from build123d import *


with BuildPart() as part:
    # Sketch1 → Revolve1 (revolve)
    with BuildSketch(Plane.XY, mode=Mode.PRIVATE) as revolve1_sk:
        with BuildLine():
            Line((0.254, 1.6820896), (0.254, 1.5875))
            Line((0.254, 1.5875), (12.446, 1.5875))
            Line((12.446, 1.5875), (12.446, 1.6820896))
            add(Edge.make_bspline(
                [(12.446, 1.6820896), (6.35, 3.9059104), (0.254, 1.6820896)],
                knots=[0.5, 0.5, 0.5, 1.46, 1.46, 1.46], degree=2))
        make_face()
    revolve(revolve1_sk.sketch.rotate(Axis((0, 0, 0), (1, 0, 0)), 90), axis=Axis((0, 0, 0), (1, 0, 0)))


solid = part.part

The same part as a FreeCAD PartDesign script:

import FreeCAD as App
import Part
import Sketcher

V = App.Vector
Q = App.Units.Quantity

doc = App.newDocument("Part")
params = doc.addObject("Spreadsheet::Sheet", "Params")
for row, (alias, value) in enumerate([
    ("revolution_angle", "360 deg"),
], start=1):
    params.set(f"A{row}", alias)
    params.set(f"B{row}", "=" + value)
    params.setAlias(f"B{row}", alias)

body = doc.addObject("PartDesign::Body", "Body")

sketch1 = body.newObject("Sketcher::SketchObject", "Sketch")
sketch1.AttachmentSupport = (doc.getObject("XY_Plane"), [""])
sketch1.MapMode = "FlatFace"
sketch1.addGeometry(Part.LineSegment(V(0.254, 1.68209, 0), V(0.254, 1.5875, 0)), False)
sketch1.addGeometry(Part.LineSegment(V(0.254, 1.5875, 0), V(12.446, 1.5875, 0)), False)
sketch1.addGeometry(Part.LineSegment(V(12.446, 1.5875, 0), V(12.446, 1.68209, 0)), False)
sketch1.addGeometry(Part.BSplineCurve([V(12.446, 1.68209, 0), V(6.35, 3.90591, 0), V(0.254, 1.68209, 0)], [3, 3], [0.5, 1.46], False, 2, [1, 1, 1], False), False)
sketch1.addConstraint(Sketcher.Constraint("Block", 3))
sketch1.addConstraint(Sketcher.Constraint("Coincident", 0, 2, 1, 1))
sketch1.addConstraint(Sketcher.Constraint("Coincident", 1, 2, 2, 1))
sketch1.addConstraint(Sketcher.Constraint("Coincident", 2, 2, 3, 1))
sketch1.addConstraint(Sketcher.Constraint("Coincident", 3, 2, 0, 1))
sketch1.addConstraint(Sketcher.Constraint("Vertical", 0))
sketch1.addConstraint(Sketcher.Constraint("Horizontal", 1))
sketch1.addConstraint(Sketcher.Constraint("Vertical", 2))
sketch1.addConstraint(Sketcher.Constraint("DistanceY", -1, 1, 0, 2, Q("0.0625 in")))
revolution = body.newObject("PartDesign::Revolution", "Revolution")
revolution.Profile = sketch1
revolution.ReferenceAxis = (sketch1, ["H_Axis"])
revolution.setExpression("Angle", "Params.revolution_angle")

doc.recompute()
